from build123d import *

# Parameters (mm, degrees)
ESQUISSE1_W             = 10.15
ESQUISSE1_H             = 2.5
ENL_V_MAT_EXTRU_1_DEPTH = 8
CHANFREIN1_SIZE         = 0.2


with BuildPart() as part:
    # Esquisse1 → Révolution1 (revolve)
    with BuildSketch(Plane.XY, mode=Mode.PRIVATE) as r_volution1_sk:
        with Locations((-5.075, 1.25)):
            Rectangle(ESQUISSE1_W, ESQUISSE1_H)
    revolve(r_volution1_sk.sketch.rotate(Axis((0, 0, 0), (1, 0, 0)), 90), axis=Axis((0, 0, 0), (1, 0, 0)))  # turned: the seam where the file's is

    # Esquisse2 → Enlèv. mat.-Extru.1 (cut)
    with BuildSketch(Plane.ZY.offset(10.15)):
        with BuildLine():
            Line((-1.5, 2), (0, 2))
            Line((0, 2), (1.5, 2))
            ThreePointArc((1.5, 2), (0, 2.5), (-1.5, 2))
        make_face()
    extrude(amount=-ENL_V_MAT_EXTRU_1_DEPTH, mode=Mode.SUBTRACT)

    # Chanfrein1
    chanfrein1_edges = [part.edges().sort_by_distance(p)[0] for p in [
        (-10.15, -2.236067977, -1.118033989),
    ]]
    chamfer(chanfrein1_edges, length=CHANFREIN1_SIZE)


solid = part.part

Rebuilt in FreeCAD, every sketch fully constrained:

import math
import FreeCAD as App
import Part
import Sketcher
from FreeCAD import Vector


def edges_at(feature, points):
    """Names of the edges that pass closest to the given points."""
    edges = feature.Shape.Edges
    near = lambda p: min(range(len(edges)), key=lambda i: edges[i].distToShape(Part.Vertex(*p))[0])
    return sorted({f"Edge{near(p) + 1}" for p in points})

doc = App.newDocument("Part")
body = doc.addObject("PartDesign::Body", "Body")

sketch1 = doc.addObject("Sketcher::SketchObject", "Sketch")
body.addObject(sketch1)
sketch1.AttachmentSupport = (doc.XY_Plane, [""])
sketch1.MapMode = "FlatFace"
sketch1.addGeometry(Part.LineSegment(Vector(-10.2, 2.5, 0), Vector(-10.2, 0, 0)), False)
sketch1.addGeometry(Part.LineSegment(Vector(-10.2, 0, 0), Vector(0, 0, 0)), False)
sketch1.addGeometry(Part.LineSegment(Vector(0, 0, 0), Vector(0, 2.5, 0)), False)
sketch1.addGeometry(Part.LineSegment(Vector(0, 2.5, 0), Vector(-10.2, 2.5, 0)), False)
sketch1.addConstraint(Sketcher.Constraint("Coincident", 0, 2, 1, 1))
sketch1.addConstraint(Sketcher.Constraint("Coincident", 1, 2, 2, 1))
sketch1.addConstraint(Sketcher.Constraint("Coincident", 2, 2, 3, 1))
sketch1.addConstraint(Sketcher.Constraint("Coincident", 3, 2, 0, 1))
sketch1.addConstraint(Sketcher.Constraint("Vertical", 0))
sketch1.addConstraint(Sketcher.Constraint("Horizontal", 1))
sketch1.addConstraint(Sketcher.Constraint("Vertical", 2))
sketch1.addConstraint(Sketcher.Constraint("Horizontal", 3))
sketch1.addConstraint(Sketcher.Constraint("Coincident", 1, 2, -1, 1))
sketch1.addConstraint(Sketcher.Constraint("DistanceY", 0, 2, 0, 1, 2.5))
sketch1.addConstraint(Sketcher.Constraint("DistanceX", 1, 1, 1, 2, 10.15))
revolution = doc.addObject("PartDesign::Revolution", "Revolution")
body.addObject(revolution)
revolution.Profile = sketch1
revolution.ReferenceAxis = (sketch1, ["H_Axis"])
revolution.Angle = 360

sketch2 = doc.addObject("Sketcher::SketchObject", "Sketch001")
body.addObject(sketch2)
sketch2.AttachmentSupport = (doc.YZ_Plane, [""])
sketch2.MapMode = "FlatFace"
sketch2.AttachmentOffset = App.Placement(Vector(0, 0, -10.15), App.Rotation())
sketch2.addGeometry(Part.LineSegment(Vector(2, -1.5, 0), Vector(2, 1.5, 0)), False)
sketch2.addGeometry(Part.ArcOfCircle(Part.Circle(Vector(0, 0, 0), Vector(0, 0, 1), 2.5), math.radians(-37), math.radians(37)), False)
sketch2.addConstraint(Sketcher.Constraint("Coincident", 0, 1, 1, 1))
sketch2.addConstraint(Sketcher.Constraint("Coincident", 1, 2, 0, 2))
sketch2.addConstraint(Sketcher.Constraint("Vertical", 0))
sketch2.addConstraint(Sketcher.Constraint("Coincident", 1, 3, -1, 1))
sketch2.addConstraint(Sketcher.Constraint("Radius", 1, 2.5))
sketch2.addConstraint(Sketcher.Constraint("DistanceY", 0, 1, 0, 2, 3.0))
pocket1 = doc.addObject("PartDesign::Pocket", "Pocket")
body.addObject(pocket1)
pocket1.Profile = sketch2
pocket1.Length = 8
pocket1.Reversed = True
doc.recompute()

chamfer = doc.addObject("PartDesign::Chamfer", "Chamfer")
body.addObject(chamfer)
chamfer.Base = (pocket1, edges_at(pocket1, [(-10.15, -2.236, -1.118)]))
chamfer.Size = 0.2

doc.recompute()
